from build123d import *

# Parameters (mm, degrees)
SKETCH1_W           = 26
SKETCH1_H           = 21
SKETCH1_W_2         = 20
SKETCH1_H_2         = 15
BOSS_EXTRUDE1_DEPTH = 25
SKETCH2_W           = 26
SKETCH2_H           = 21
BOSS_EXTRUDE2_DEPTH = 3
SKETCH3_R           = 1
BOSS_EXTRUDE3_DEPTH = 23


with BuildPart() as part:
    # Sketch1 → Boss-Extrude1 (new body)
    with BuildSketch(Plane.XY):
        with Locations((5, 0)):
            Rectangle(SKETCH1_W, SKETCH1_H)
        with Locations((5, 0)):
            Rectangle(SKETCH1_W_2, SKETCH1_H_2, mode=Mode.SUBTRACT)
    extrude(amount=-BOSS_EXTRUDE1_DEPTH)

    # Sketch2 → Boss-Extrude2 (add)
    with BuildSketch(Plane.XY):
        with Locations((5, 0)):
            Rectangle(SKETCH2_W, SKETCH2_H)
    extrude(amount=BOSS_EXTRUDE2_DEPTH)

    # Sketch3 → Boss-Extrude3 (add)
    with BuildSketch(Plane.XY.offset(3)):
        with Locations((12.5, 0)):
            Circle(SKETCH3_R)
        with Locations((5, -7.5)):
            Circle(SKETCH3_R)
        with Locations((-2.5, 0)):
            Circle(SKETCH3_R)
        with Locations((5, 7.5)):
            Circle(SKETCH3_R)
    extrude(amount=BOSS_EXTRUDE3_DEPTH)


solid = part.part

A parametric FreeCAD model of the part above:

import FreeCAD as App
import Part
import Sketcher
Q = App.Units.Quantity


def add_polygon(sketch, points):
    """Adds a closed chain of lines whose ends are joined by coincident constraints."""
    first, n = sketch.GeometryCount, len(points)
    for a, b in zip(points, points[1:] + points[:1]):
        sketch.addGeometry(Part.LineSegment(App.Vector(*a, 0), App.Vector(*b, 0)), False)
    for i in range(n):
        sketch.addConstraint(Sketcher.Constraint("Coincident", first + i, 2, first + (i + 1) % n, 1))

doc = App.newDocument("Part")
body = doc.addObject("PartDesign::Body", "Body")

# Sketch on XY plane
sketch1 = doc.addObject("Sketcher::SketchObject", "Sketch")
body.addObject(sketch1)
sketch1.AttachmentSupport = (doc.XY_Plane, [""])
sketch1.MapMode = "FlatFace"
add_polygon(sketch1, [(-8, 10), (-8, -10), (18, -10), (18, 10)])  # lines 0-3
add_polygon(sketch1, [(15, -8), (-5, -8), (-5, 8), (15, 8)])  # lines 4-7
sketch1.addConstraint(Sketcher.Constraint("Vertical", 0))
sketch1.addConstraint(Sketcher.Constraint("Horizontal", 1))
sketch1.addConstraint(Sketcher.Constraint("Vertical", 2))
sketch1.addConstraint(Sketcher.Constraint("Horizontal", 3))
sketch1.addConstraint(Sketcher.Constraint("Horizontal", 4))
sketch1.addConstraint(Sketcher.Constraint("Vertical", 5))
sketch1.addConstraint(Sketcher.Constraint("Horizontal", 6))
sketch1.addConstraint(Sketcher.Constraint("Vertical", 7))
sketch1.addConstraint(Sketcher.Constraint("DistanceX", 1, 1, 1, 2, Q("26 mm")))
sketch1.addConstraint(Sketcher.Constraint("DistanceX", 4, 2, 4, 1, Q("20 mm")))
sketch1.addConstraint(Sketcher.Constraint("DistanceY", 0, 2, 0, 1, Q("21 mm")))
sketch1.addConstraint(Sketcher.Constraint("DistanceY", 5, 1, 5, 2, Q("15 mm")))
sketch1.addConstraint(Sketcher.Constraint("DistanceX", 0, 2, -1, 1, Q("8 mm")))
sketch1.addConstraint(Sketcher.Constraint("DistanceX", 4, 2, -1, 1, Q("5 mm")))
sketch1.addConstraint(Sketcher.Constraint("DistanceY", 0, 2, 4, 2, Q("3 mm")))
sketch1.addConstraint(Sketcher.Constraint("DistanceY", 0, 2, -1, 1, Q("10.5 mm")))
pad1 = doc.addObject("PartDesign::Pad", "Pad")
body.addObject(pad1)
pad1.Profile = sketch1
pad1.Length = 25
pad1.Reversed = True

# Sketch on XY plane
sketch2 = doc.addObject("Sketcher::SketchObject", "Sketch001")
body.addObject(sketch2)
sketch2.AttachmentSupport = (doc.XY_Plane, [""])
sketch2.MapMode = "FlatFace"
add_polygon(sketch2, [(-8, 10), (-8, -10), (18, -10), (18, 10)])  # lines 0-3
sketch2.addConstraint(Sketcher.Constraint("Vertical", 0))
sketch2.addConstraint(Sketcher.Constraint("Horizontal", 1))
sketch2.addConstraint(Sketcher.Constraint("Vertical", 2))
sketch2.addConstraint(Sketcher.Constraint("Horizontal", 3))
sketch2.addConstraint(Sketcher.Constraint("DistanceX", 1, 1, 1, 2, Q("26 mm")))
sketch2.addConstraint(Sketcher.Constraint("DistanceY", 0, 2, 0, 1, Q("21 mm")))
sketch2.addConstraint(Sketcher.Constraint("DistanceX", 0, 2, -1, 1, Q("8 mm")))
sketch2.addConstraint(Sketcher.Constraint("DistanceY", 0, 2, -1, 1, Q("10.5 mm")))
pad2 = doc.addObject("PartDesign::Pad", "Pad001")
body.addObject(pad2)
pad2.Profile = sketch2
pad2.Length = 3

# Sketch on XY plane
sketch3 = doc.addObject("Sketcher::SketchObject", "Sketch002")
body.addObject(sketch3)
sketch3.AttachmentSupport = (doc.XY_Plane, [""])
sketch3.MapMode = "FlatFace"
sketch3.AttachmentOffset = App.Placement(App.Vector(0, 0, 3), App.Rotation())
sketch3.addGeometry(Part.Circle(App.Vector(12.5, 0, 0), App.Vector(0, 0, 1), 1), False)
sketch3.addGeometry(Part.Circle(App.Vector(5, -7.5, 0), App.Vector(0, 0, 1), 1), False)
sketch3.addGeometry(Part.Circle(App.Vector(-2.5, 0, 0), App.Vector(0, 0, 1), 1), False)
sketch3.addGeometry(Part.Circle(App.Vector(5, 7.5, 0), App.Vector(0, 0, 1), 1), False)
sketch3.addConstraint(Sketcher.Constraint("Equal", 0, 1))
sketch3.addConstraint(Sketcher.Constraint("Equal", 1, 2))
sketch3.addConstraint(Sketcher.Constraint("Equal", 2, 3))
sketch3.addConstraint(Sketcher.Constraint("Symmetric", 1, 3, 3, 3, -1))
sketch3.addConstraint(Sketcher.Constraint("PointOnObject", 0, 3, -1))
sketch3.addConstraint(Sketcher.Constraint("PointOnObject", 2, 3, -1))
sketch3.addConstraint(Sketcher.Constraint("Diameter", 0, Q("2 mm")))
sketch3.addConstraint(Sketcher.Constraint("DistanceX", -1, 1, 1, 3, Q("5 mm")))
sketch3.addConstraint(Sketcher.Constraint("DistanceX", 2, 3, 0, 3, Q("15 mm")))
sketch3.addConstraint(Sketcher.Constraint("DistanceY", 1, 3, 3, 3, Q("15 mm")))
sketch3.addConstraint(Sketcher.Constraint("DistanceX", -1, 1, 0, 3, Q("12.5 mm")))
pad3 = doc.addObject("PartDesign::Pad", "Pad002")
body.addObject(pad3)
pad3.Profile = sketch3
pad3.Length = 23

doc.recompute()
